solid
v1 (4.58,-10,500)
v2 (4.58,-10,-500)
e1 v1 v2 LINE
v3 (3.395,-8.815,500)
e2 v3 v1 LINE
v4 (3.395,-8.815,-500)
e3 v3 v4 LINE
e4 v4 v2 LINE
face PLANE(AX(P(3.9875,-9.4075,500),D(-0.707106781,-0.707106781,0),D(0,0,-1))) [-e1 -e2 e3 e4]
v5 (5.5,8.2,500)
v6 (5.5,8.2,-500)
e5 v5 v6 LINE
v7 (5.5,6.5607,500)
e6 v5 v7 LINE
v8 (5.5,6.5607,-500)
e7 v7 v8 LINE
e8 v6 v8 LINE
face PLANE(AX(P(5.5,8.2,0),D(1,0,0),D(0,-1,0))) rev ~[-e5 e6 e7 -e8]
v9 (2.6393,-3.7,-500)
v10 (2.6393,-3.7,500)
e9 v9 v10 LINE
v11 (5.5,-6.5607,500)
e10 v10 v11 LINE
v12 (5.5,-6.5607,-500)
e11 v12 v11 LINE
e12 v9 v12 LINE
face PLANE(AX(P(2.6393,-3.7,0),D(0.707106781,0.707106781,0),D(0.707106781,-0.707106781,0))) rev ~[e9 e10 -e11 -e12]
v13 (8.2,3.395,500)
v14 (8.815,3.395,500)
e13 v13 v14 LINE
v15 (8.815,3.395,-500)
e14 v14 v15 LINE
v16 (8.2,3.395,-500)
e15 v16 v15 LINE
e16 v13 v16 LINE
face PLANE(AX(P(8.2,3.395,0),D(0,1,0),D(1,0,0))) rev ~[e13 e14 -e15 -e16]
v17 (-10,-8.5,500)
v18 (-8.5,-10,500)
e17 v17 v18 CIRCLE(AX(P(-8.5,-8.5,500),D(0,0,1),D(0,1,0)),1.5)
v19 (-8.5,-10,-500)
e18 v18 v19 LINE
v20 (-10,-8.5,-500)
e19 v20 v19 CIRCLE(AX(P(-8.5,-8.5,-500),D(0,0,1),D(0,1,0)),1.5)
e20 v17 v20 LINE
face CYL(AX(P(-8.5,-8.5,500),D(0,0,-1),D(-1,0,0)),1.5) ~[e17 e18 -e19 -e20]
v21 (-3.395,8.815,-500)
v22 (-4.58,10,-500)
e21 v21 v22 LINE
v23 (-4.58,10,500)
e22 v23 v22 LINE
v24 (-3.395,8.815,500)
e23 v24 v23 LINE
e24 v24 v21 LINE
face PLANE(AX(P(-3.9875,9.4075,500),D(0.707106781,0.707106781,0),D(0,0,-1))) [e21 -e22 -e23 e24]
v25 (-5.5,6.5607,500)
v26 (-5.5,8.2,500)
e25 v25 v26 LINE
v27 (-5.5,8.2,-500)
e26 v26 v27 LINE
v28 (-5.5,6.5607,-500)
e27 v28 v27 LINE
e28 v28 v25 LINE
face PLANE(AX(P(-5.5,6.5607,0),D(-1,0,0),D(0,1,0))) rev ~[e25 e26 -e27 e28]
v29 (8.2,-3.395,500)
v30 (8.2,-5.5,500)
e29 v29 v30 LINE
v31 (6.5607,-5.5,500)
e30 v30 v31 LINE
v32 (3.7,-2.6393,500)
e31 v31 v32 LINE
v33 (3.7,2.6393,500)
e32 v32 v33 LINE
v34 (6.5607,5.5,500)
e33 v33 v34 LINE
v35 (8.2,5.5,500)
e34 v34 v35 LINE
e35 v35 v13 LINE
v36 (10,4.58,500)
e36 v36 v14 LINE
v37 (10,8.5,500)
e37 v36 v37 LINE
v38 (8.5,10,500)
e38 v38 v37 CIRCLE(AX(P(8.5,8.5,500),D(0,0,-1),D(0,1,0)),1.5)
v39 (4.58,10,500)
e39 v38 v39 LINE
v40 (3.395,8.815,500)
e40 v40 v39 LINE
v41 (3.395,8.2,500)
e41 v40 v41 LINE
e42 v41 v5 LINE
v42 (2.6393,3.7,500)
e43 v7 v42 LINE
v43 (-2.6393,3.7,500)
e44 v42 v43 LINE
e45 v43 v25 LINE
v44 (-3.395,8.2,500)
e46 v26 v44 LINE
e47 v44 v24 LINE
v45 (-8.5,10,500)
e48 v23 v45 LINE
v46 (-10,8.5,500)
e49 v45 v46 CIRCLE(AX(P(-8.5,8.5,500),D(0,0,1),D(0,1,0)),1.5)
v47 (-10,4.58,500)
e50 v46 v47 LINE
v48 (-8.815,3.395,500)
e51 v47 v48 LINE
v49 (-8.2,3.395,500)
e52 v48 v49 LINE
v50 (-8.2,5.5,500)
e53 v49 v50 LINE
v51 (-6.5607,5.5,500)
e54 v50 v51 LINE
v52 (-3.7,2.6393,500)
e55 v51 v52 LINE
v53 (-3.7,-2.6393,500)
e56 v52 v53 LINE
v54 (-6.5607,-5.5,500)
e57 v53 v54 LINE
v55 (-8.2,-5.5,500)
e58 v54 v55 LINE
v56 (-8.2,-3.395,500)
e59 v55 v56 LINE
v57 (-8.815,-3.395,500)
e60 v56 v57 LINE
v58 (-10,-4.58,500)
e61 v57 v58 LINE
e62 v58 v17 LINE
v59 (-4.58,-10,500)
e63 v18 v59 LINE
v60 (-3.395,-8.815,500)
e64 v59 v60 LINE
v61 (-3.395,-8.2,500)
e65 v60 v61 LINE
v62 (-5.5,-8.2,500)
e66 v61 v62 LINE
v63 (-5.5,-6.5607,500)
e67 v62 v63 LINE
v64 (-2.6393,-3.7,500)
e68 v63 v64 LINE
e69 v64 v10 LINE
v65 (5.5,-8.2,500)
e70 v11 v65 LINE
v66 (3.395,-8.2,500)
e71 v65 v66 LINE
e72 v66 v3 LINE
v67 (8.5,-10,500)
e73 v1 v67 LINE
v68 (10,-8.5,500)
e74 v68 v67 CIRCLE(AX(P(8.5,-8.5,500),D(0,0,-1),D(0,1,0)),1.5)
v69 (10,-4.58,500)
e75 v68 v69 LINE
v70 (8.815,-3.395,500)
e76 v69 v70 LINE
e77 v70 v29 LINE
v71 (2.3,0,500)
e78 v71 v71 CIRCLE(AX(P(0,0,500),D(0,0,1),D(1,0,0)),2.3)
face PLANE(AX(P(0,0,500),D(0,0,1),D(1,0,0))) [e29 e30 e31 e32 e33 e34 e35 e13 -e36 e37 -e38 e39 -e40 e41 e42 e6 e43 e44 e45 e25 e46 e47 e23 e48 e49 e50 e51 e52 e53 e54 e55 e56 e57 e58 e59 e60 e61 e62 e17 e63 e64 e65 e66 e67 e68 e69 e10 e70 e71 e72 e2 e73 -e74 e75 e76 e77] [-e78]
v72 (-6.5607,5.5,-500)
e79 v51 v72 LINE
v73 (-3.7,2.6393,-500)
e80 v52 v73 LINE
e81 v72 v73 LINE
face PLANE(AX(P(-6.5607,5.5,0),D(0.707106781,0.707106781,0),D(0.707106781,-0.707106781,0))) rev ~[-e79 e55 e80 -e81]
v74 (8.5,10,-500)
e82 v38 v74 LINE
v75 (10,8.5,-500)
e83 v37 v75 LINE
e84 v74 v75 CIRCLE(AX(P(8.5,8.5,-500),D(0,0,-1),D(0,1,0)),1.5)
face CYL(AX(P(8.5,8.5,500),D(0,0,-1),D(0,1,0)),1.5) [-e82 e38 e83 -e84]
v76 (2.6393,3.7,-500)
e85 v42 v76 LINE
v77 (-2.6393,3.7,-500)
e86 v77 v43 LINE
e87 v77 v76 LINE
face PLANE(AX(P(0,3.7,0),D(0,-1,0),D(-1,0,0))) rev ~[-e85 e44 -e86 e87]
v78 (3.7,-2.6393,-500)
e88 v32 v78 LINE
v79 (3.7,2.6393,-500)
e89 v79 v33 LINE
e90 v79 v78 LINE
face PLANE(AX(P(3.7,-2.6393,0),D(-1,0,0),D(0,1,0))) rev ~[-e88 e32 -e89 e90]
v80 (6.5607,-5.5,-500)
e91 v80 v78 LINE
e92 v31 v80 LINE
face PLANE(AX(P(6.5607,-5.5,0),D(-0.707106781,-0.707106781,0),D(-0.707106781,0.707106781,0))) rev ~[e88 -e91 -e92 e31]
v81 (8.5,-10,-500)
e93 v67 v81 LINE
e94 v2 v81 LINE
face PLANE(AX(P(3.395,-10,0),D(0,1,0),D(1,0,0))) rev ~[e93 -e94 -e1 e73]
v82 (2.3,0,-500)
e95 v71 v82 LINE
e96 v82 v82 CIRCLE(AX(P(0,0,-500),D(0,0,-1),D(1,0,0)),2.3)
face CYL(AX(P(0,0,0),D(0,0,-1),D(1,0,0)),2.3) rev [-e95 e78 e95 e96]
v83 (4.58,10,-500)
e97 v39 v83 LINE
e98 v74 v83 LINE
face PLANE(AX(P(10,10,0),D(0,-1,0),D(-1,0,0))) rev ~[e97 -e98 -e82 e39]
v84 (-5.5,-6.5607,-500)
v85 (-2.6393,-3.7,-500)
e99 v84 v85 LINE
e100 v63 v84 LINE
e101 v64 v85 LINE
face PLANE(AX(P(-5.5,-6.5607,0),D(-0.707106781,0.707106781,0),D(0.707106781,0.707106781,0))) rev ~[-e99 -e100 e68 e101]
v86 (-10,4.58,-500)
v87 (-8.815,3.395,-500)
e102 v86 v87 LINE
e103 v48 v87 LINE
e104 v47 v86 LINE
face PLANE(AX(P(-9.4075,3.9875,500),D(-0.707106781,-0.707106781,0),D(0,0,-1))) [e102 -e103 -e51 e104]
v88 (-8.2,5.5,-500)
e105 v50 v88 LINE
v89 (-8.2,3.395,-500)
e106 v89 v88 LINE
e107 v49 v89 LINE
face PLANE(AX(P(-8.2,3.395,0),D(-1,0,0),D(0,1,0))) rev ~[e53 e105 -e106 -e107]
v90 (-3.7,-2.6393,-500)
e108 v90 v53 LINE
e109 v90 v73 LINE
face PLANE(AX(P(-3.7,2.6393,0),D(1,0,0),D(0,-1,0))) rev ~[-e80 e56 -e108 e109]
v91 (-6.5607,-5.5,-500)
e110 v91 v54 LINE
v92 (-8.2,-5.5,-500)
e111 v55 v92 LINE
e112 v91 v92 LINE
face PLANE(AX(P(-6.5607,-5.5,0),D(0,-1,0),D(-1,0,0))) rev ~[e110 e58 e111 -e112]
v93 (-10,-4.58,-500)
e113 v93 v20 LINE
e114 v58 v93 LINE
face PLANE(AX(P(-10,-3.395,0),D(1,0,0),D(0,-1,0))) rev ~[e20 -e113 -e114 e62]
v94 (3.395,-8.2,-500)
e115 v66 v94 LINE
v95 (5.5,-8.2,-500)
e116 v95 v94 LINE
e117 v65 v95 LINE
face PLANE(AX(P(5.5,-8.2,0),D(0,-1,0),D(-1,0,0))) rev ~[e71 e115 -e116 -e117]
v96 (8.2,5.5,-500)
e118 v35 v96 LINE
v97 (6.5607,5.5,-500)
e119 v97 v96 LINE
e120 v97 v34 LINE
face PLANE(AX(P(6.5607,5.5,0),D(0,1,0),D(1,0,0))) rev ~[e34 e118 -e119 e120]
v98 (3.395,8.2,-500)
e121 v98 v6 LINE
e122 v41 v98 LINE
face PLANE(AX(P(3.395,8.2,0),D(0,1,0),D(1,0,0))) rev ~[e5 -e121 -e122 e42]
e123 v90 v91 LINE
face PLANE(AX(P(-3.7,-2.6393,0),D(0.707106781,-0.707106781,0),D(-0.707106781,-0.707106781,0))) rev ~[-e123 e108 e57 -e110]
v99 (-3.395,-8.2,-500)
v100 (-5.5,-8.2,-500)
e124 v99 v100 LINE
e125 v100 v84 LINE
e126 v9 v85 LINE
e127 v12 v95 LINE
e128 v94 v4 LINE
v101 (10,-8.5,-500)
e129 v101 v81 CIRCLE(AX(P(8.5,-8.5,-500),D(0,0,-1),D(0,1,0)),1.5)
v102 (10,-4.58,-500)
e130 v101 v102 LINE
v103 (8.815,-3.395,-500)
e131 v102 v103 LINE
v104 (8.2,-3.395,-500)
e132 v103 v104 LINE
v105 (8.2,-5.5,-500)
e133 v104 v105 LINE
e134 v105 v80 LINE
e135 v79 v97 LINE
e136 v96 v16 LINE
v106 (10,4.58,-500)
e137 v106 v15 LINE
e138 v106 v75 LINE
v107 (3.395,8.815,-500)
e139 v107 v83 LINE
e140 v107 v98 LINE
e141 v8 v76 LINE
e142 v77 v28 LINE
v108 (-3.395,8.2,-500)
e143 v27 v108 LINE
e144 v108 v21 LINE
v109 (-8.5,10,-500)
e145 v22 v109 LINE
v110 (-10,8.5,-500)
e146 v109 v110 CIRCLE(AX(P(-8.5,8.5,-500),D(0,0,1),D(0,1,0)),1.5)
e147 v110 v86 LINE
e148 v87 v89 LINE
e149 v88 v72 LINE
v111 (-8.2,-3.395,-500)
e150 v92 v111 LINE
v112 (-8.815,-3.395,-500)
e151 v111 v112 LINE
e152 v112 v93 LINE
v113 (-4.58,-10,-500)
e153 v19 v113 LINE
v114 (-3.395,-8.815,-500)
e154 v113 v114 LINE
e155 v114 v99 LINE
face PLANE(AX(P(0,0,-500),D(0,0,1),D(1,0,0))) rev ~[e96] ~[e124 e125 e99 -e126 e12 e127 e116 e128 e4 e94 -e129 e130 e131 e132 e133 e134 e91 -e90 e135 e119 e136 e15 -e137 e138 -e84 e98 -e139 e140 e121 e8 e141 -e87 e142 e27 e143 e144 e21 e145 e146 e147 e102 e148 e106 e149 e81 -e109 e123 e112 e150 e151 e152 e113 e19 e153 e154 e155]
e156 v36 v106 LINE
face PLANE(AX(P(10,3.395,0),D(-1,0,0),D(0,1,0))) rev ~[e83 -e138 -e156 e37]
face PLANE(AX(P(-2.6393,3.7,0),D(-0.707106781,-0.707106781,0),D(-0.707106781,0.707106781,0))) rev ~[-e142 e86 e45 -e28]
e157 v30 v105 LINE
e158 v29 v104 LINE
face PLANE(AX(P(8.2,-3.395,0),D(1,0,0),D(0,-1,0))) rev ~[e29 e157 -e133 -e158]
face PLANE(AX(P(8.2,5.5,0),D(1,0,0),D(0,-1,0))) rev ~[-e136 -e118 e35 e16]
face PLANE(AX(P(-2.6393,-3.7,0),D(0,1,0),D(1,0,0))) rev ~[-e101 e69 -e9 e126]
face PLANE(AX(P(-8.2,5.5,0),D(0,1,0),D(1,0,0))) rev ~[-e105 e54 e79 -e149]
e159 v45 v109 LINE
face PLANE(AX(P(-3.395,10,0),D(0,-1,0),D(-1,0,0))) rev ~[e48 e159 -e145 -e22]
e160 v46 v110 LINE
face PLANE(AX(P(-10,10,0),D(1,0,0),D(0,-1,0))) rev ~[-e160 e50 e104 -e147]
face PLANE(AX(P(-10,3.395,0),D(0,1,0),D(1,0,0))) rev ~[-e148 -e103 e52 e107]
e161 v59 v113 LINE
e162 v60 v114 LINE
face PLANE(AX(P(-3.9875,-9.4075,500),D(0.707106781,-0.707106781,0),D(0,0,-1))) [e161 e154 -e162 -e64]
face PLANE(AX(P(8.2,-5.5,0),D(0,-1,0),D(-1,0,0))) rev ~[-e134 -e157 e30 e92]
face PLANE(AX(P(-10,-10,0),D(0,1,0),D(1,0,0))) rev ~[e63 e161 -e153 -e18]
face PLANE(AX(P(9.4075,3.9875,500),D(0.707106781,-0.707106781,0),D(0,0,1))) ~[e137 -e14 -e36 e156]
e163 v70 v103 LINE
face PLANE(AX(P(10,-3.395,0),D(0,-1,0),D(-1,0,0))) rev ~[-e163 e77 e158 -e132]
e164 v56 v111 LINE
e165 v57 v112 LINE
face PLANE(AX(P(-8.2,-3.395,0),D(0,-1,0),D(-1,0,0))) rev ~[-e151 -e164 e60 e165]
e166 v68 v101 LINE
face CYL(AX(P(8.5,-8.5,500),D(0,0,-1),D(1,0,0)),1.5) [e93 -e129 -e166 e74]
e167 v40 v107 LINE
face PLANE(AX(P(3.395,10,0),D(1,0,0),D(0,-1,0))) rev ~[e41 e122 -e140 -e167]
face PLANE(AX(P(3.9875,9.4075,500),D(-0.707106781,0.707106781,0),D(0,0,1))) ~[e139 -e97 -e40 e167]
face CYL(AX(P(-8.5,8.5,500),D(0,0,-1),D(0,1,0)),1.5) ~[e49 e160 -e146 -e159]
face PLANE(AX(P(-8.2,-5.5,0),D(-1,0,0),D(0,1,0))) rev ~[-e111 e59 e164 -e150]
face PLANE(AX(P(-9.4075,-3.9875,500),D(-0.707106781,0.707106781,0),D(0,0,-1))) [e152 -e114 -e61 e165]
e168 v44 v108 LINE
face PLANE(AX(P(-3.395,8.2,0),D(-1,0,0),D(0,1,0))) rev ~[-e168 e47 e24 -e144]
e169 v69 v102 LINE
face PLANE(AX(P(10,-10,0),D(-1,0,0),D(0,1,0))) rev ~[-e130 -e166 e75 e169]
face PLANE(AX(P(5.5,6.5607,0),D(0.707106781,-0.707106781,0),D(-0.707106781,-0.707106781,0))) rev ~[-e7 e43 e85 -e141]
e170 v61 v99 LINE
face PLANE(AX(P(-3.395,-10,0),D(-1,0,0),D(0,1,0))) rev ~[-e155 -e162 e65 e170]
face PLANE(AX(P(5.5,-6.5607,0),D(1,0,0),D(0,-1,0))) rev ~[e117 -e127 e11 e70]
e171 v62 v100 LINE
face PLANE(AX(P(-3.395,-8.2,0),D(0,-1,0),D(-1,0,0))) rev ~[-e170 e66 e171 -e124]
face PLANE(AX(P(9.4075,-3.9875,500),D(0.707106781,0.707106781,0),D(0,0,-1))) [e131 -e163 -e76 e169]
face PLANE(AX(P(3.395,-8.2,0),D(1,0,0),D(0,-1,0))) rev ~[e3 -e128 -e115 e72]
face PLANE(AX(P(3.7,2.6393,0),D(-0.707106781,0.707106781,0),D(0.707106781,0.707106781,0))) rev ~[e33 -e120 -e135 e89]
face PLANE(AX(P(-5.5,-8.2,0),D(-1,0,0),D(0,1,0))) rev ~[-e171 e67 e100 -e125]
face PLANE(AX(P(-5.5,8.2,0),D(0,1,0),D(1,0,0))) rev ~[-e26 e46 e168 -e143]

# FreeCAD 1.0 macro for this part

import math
import FreeCAD as App
import Part
import Sketcher
from FreeCAD import Vector
Q = App.Units.Quantity


def edges_at(feature, points):
    """Names of the edges that pass closest to the given points."""
    edges = feature.Shape.Edges
    near = lambda p: min(range(len(edges)), key=lambda i: edges[i].distToShape(Part.Vertex(*p))[0])
    return sorted({f"Edge{near(p) + 1}" for p in points})

doc = App.newDocument("Part")
body = doc.addObject("PartDesign::Body", "Body")

# Sketch on XY plane
sketch1 = body.newObject("Sketcher::SketchObject", "Sketch")
sketch1.AttachmentSupport = (doc.getObject("XY_Plane"), [""])
sketch1.MapMode = "FlatFace"
sketch1.addGeometry([
    Part.LineSegment(Vector(0, 2.3, 0), Vector(0, 3.7, 0)),  # 0
    Part.LineSegment(Vector(0, 3.7, 0), Vector(-2.6, 3.7, 0)),  # 1
    Part.LineSegment(Vector(-2.6, 3.7, 0), Vector(-5.5, 6.6, 0)),  # 2
    Part.LineSegment(Vector(-5.5, 6.6, 0), Vector(-5.5, 8.2, 0)),  # 3
    Part.LineSegment(Vector(-5.5, 8.2, 0), Vector(-3.4, 8.2, 0)),  # 4
    Part.LineSegment(Vector(-3.4, 8.2, 0), Vector(-3.4, 10, 0)),  # 5
    Part.LineSegment(Vector(-3.4, 10, 0), Vector(-10, 10, 0)),  # 6
    Part.LineSegment(Vector(-10, 10, 0), Vector(-10, 3.4, 0)),  # 7
    Part.LineSegment(Vector(-10, 3.4, 0), Vector(-8.2, 3.4, 0)),  # 8
    Part.LineSegment(Vector(-8.2, 3.4, 0), Vector(-8.2, 5.5, 0)),  # 9
    Part.LineSegment(Vector(-8.2, 5.5, 0), Vector(-6.6, 5.5, 0)),  # 10
    Part.LineSegment(Vector(-6.6, 5.5, 0), Vector(-3.7, 2.6, 0)),  # 11
    Part.LineSegment(Vector(-3.7, 2.6, 0), Vector(-3.7, 0, 0)),  # 12
    Part.LineSegment(Vector(-3.7, 0, 0), Vector(-2.3, 0, 0)),  # 13
    Part.ArcOfCircle(Part.Circle(Vector(0, 0, 0), Vector(0, 0, 1), 2.3), math.radians(90), math.radians(180)),  # 14
], False)
sketch1.addConstraint([
    Sketcher.Constraint("Coincident", 0, 2, 1, 1),
    Sketcher.Constraint("Coincident", 1, 2, 2, 1),
    Sketcher.Constraint("Coincident", 2, 2, 3, 1),
    Sketcher.Constraint("Coincident", 3, 2, 4, 1),
    Sketcher.Constraint("Coincident", 4, 2, 5, 1),
    Sketcher.Constraint("Coincident", 5, 2, 6, 1),
    Sketcher.Constraint("Coincident", 6, 2, 7, 1),
    Sketcher.Constraint("Coincident", 7, 2, 8, 1),
    Sketcher.Constraint("Coincident", 8, 2, 9, 1),
    Sketcher.Constraint("Coincident", 9, 2, 10, 1),
    Sketcher.Constraint("Coincident", 10, 2, 11, 1),
    Sketcher.Constraint("Coincident", 11, 2, 12, 1),
    Sketcher.Constraint("Coincident", 12, 2, 13, 1),
    Sketcher.Constraint("Coincident", 13, 2, 14, 2),
    Sketcher.Constraint("Coincident", 14, 1, 0, 1),
    Sketcher.Constraint("Vertical", 0),
    Sketcher.Constraint("Horizontal", 1),
    Sketcher.Constraint("Vertical", 3),
    Sketcher.Constraint("Horizontal", 4),
    Sketcher.Constraint("Vertical", 5),
    Sketcher.Constraint("Horizontal", 6),
    Sketcher.Constraint("Vertical", 7),
    Sketcher.Constraint("Horizontal", 8),
    Sketcher.Constraint("Vertical", 9),
    Sketcher.Constraint("Horizontal", 10),
    Sketcher.Constraint("Vertical", 12),
    Sketcher.Constraint("Horizontal", 13),
    Sketcher.Constraint("Coincident", 14, 3, -1, 1),
    Sketcher.Constraint("PointOnObject", 0, 2, -2),
    Sketcher.Constraint("PointOnObject", 12, 2, -1),
    Sketcher.Constraint("Parallel", 2, 11),
    Sketcher.Constraint("Equal", 13, 0),
    Sketcher.Constraint("Equal", 10, 3),
    Sketcher.Constraint("Equal", 8, 5),
    Sketcher.Constraint("Equal", 6, 7),
    Sketcher.Constraint("Equal", 4, 9),
    Sketcher.Constraint("Equal", 1, 12),
    Sketcher.Constraint("Radius", 14, Q("2.3 mm")),
    Sketcher.Constraint("Angle", 2, Q("135 deg")),
    Sketcher.Constraint("DistanceX", 8, 1, 8, 2, Q("1.8 mm")),
    Sketcher.Constraint("DistanceY", 1, 2, 5, 2, Q("6.3 mm")),
    Sketcher.Constraint("DistanceX", 2, 2, 11, 2, Q("1.8 mm")),
    Sketcher.Constraint("DistanceX", 13, 1, 13, 2, Q("1.4 mm")),
    Sketcher.Constraint("DistanceX", 4, 1, 4, 2, Q("2.105 mm")),
    Sketcher.Constraint("DistanceX", 1, 2, 1, 1, Q("2.6393 mm")),
])
pad1 = body.newObject("PartDesign::Pad", "Pad")
pad1.Profile = sketch1
pad1.Length = 1000
pad1.Midplane = True
doc.recompute()

polarpattern = body.newObject("PartDesign::PolarPattern", "PolarPattern")
polarpattern.Originals = [pad1]
polarpattern.Axis = (doc.getObject("Z_Axis"), [""])
polarpattern.Angle = 360
polarpattern.Occurrences = 4
body.Tip = polarpattern
doc.recompute()

chamfer = body.newObject("PartDesign::Chamfer", "Chamfer")
chamfer.Base = (polarpattern, edges_at(polarpattern, [
    (-3.395, 10, 0),
    (3.395, 10, 0),
    (10, 3.395, 0),
    (10, -3.395, 0),
    (3.395, -10, 0),
    (-3.395, -10, 0),
    (-10, -3.395, 0),
    (-10, 3.395, 0),
]))
chamfer.Size = 1.185
doc.recompute()

fillet = body.newObject("PartDesign::Fillet", "Fillet")
fillet.Base = (chamfer, edges_at(chamfer, [
    (-10, 10, 0),
    (10, 10, 0),
    (-10, -10, 0),
    (10, -10, 0),
]))
fillet.Radius = 1.5

doc.recompute()
